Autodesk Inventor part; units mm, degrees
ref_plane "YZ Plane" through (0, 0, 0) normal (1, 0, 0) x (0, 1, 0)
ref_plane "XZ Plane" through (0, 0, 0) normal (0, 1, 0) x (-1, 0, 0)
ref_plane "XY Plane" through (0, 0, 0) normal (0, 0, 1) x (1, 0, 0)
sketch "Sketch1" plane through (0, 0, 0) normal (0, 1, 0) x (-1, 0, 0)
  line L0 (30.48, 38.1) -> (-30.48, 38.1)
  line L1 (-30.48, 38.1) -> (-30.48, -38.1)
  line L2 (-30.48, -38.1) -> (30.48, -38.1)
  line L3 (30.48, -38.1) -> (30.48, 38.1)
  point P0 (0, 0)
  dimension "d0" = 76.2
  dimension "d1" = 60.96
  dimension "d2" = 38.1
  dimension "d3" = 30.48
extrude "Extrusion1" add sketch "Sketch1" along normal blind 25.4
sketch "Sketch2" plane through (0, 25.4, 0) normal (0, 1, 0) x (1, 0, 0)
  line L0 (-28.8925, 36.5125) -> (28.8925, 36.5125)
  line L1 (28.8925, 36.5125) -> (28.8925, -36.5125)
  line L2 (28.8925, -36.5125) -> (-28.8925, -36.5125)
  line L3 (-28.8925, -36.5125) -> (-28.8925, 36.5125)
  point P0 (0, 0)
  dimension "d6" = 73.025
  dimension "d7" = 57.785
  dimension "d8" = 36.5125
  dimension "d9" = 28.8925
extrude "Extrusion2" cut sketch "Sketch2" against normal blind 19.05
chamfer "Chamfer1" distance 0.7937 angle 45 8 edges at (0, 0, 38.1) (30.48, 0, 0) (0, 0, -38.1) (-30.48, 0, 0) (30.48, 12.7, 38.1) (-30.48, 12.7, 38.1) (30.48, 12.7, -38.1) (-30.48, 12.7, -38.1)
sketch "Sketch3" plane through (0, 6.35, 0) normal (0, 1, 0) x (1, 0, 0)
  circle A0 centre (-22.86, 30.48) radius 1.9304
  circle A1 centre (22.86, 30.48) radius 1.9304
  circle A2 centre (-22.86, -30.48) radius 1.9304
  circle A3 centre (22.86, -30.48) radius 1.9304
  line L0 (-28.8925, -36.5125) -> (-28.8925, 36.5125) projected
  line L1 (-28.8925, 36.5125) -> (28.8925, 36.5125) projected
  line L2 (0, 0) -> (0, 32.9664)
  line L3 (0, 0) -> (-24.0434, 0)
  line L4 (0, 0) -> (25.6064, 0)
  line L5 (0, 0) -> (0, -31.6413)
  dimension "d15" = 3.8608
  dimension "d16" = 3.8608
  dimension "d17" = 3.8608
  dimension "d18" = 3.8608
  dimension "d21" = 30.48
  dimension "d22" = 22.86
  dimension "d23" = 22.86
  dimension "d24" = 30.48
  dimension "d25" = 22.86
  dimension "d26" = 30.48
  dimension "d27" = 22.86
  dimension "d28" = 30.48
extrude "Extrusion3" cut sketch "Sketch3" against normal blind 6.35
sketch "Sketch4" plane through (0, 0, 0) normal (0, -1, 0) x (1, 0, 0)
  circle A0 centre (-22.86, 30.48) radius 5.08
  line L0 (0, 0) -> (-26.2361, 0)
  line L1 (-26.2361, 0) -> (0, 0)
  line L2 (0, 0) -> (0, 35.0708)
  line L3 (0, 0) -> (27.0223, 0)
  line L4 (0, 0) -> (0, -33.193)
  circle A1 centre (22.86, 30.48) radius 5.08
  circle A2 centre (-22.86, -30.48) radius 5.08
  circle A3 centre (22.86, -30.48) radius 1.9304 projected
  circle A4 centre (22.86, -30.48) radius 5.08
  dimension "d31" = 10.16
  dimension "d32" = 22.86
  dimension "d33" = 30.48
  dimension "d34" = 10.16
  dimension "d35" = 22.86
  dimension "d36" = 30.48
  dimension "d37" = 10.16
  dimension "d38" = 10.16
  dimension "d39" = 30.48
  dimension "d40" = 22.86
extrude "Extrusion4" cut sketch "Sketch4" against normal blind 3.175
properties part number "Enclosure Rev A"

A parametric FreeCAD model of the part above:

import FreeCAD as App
import Part
import Sketcher
Q = App.Units.Quantity


def edges_at(feature, points):
    """Names of the edges that pass closest to the given points."""
    edges = feature.Shape.Edges
    near = lambda p: min(range(len(edges)), key=lambda i: edges[i].distToShape(Part.Vertex(*p))[0])
    return sorted({f"Edge{near(p) + 1}" for p in points})


def add_polygon(sketch, points):
    """Adds a closed chain of lines whose ends are joined by coincident constraints."""
    first, n = sketch.GeometryCount, len(points)
    for a, b in zip(points, points[1:] + points[:1]):
        sketch.addGeometry(Part.LineSegment(App.Vector(*a, 0), App.Vector(*b, 0)), False)
    for i in range(n):
        sketch.addConstraint(Sketcher.Constraint("Coincident", first + i, 2, first + (i + 1) % n, 1))

doc = App.newDocument("Part")
body = doc.addObject("PartDesign::Body", "Body")

# Sketch on XZ plane
sketch1 = doc.addObject("Sketcher::SketchObject", "Sketch")
body.addObject(sketch1)
sketch1.AttachmentSupport = (doc.XZ_Plane, [""])
sketch1.MapMode = "FlatFace"
add_polygon(sketch1, [(-30, -38), (-30, 38), (30, 38), (30, -38)])  # lines 0-3
sketch1.addConstraint([
    Sketcher.Constraint("Vertical", 0),
    Sketcher.Constraint("Horizontal", 1),
    Sketcher.Constraint("Vertical", 2),
    Sketcher.Constraint("Horizontal", 3),
    Sketcher.Constraint("Symmetric", 0, 2, 2, 2, -1, 1),
    Sketcher.Constraint("DistanceY", 0, 1, 0, 2, Q("3 in")),
    Sketcher.Constraint("DistanceX", 1, 1, 1, 2, Q("2.4 in")),
])
pad1 = doc.addObject("PartDesign::Pad", "Pad")
body.addObject(pad1)
pad1.Profile = sketch1
pad1.Length = Q("1 in")
pad1.Reversed = True

# Sketch on XZ plane
sketch2 = doc.addObject("Sketcher::SketchObject", "Sketch001")
body.addObject(sketch2)
sketch2.AttachmentSupport = (doc.XZ_Plane, [""])
sketch2.MapMode = "FlatFace"
sketch2.AttachmentOffset = App.Placement(App.Vector(0, 0, -1 * 25.4), App.Rotation())
add_polygon(sketch2, [(29, -37), (-29, -37), (-29, 37), (29, 37)])  # lines 0-3
sketch2.addConstraint([
    Sketcher.Constraint("Horizontal", 0),
    Sketcher.Constraint("Vertical", 1),
    Sketcher.Constraint("Horizontal", 2),
    Sketcher.Constraint("Vertical", 3),
    Sketcher.Constraint("Symmetric", 0, 2, 2, 2, -1, 1),
    Sketcher.Constraint("DistanceX", 0, 2, 0, 1, Q("2.275 in")),
    Sketcher.Constraint("DistanceY", 1, 1, 1, 2, Q("2.875 in")),
])
pocket1 = doc.addObject("PartDesign::Pocket", "Pocket")
body.addObject(pocket1)
pocket1.Profile = sketch2
pocket1.Length = Q("0.75 in")
pocket1.Reversed = True
doc.recompute()

chamfer = doc.addObject("PartDesign::Chamfer", "Chamfer")
body.addObject(chamfer)
chamfer.Base = (pocket1, edges_at(pocket1, [
    (0, 0, 38.1),
    (30.48, 0, 0),
    (0, 0, -38.1),
    (-30.48, 0, 0),
    (30.48, 12.7, 38.1),
    (-30.48, 12.7, 38.1),
    (30.48, 12.7, -38.1),
    (-30.48, 12.7, -38.1),
]))
chamfer.Size = Q("0.031248 in")

# Sketch on XZ plane
sketch3 = doc.addObject("Sketcher::SketchObject", "Sketch002")
body.addObject(sketch3)
sketch3.AttachmentSupport = (doc.XZ_Plane, [""])
sketch3.MapMode = "FlatFace"
sketch3.AttachmentOffset = App.Placement(App.Vector(0, 0, -0.25 * 25.4), App.Rotation())
sketch3.addGeometry([
    Part.Circle(App.Vector(-22.9, -30.5, 0), App.Vector(0, 0, 1), 1.9),
    Part.Circle(App.Vector(22.9, -30.5, 0), App.Vector(0, 0, 1), 1.9),
    Part.Circle(App.Vector(-22.9, 30.5, 0), App.Vector(0, 0, 1), 1.9),
    Part.Circle(App.Vector(22.9, 30.5, 0), App.Vector(0, 0, 1), 1.9),
], False)
sketch3.addConstraint([
    Sketcher.Constraint("Equal", 0, 1),
    Sketcher.Constraint("Equal", 1, 2),
    Sketcher.Constraint("Equal", 2, 3),
    Sketcher.Constraint("Symmetric", 1, 3, 2, 3, -1, 1),
    Sketcher.Constraint("Symmetric", 0, 3, 3, 3, -1, 1),
    Sketcher.Constraint("Symmetric", 0, 3, 1, 3, -2),
    Sketcher.Constraint("Diameter", 0, Q("0.152 in")),
    Sketcher.Constraint("DistanceX", 0, 3, -1, 1, Q("0.9 in")),
    Sketcher.Constraint("DistanceY", 0, 3, -1, 1, Q("1.2 in")),
])
pocket2 = doc.addObject("PartDesign::Pocket", "Pocket001")
body.addObject(pocket2)
pocket2.Profile = sketch3
pocket2.Length = Q("0.25 in")
pocket2.Reversed = True

# Sketch on XZ plane
sketch4 = doc.addObject("Sketcher::SketchObject", "Sketch003")
body.addObject(sketch4)
sketch4.AttachmentSupport = (doc.XZ_Plane, [""])
sketch4.MapMode = "FlatFace"
sketch4.addGeometry([
    Part.Circle(App.Vector(-22.9, 30.5, 0), App.Vector(0, 0, 1), 5.1),  # 0
    Part.Circle(App.Vector(22.9, 30.5, 0), App.Vector(0, 0, 1), 5.1),  # 1
    Part.Circle(App.Vector(-22.9, -30.5, 0), App.Vector(0, 0, 1), 5.1),  # 2
    Part.Circle(App.Vector(22.9, -30.5, 0), App.Vector(0, 0, 1), 5.1),  # 3
    Part.Circle(App.Vector(22.9, -30.5, 0), App.Vector(0, 0, 1), 1.9),  # 4
], False)
sketch4.addConstraint([
    Sketcher.Constraint("Coincident", 4, 3, 3, 3),
    Sketcher.Constraint("Equal", 0, 1),
    Sketcher.Constraint("Equal", 1, 2),
    Sketcher.Constraint("Equal", 2, 3),
    Sketcher.Constraint("Symmetric", 1, 3, 2, 3, -1, 1),
    Sketcher.Constraint("Symmetric", 0, 3, 3, 3, -1, 1),
    Sketcher.Constraint("Symmetric", 0, 3, 1, 3, -2),
    Sketcher.Constraint("Diameter", 0, Q("0.4 in")),
    Sketcher.Constraint("DistanceX", 0, 3, -1, 1, Q("0.9 in")),
    Sketcher.Constraint("DistanceY", -1, 1, 0, 3, Q("1.2 in")),
    Sketcher.Constraint("Diameter", 4, Q("0.152 in")),
])
pocket3 = doc.addObject("PartDesign::Pocket", "Pocket002")
body.addObject(pocket3)
pocket3.Profile = sketch4
pocket3.Length = Q("0.125 in")

doc.recompute()
